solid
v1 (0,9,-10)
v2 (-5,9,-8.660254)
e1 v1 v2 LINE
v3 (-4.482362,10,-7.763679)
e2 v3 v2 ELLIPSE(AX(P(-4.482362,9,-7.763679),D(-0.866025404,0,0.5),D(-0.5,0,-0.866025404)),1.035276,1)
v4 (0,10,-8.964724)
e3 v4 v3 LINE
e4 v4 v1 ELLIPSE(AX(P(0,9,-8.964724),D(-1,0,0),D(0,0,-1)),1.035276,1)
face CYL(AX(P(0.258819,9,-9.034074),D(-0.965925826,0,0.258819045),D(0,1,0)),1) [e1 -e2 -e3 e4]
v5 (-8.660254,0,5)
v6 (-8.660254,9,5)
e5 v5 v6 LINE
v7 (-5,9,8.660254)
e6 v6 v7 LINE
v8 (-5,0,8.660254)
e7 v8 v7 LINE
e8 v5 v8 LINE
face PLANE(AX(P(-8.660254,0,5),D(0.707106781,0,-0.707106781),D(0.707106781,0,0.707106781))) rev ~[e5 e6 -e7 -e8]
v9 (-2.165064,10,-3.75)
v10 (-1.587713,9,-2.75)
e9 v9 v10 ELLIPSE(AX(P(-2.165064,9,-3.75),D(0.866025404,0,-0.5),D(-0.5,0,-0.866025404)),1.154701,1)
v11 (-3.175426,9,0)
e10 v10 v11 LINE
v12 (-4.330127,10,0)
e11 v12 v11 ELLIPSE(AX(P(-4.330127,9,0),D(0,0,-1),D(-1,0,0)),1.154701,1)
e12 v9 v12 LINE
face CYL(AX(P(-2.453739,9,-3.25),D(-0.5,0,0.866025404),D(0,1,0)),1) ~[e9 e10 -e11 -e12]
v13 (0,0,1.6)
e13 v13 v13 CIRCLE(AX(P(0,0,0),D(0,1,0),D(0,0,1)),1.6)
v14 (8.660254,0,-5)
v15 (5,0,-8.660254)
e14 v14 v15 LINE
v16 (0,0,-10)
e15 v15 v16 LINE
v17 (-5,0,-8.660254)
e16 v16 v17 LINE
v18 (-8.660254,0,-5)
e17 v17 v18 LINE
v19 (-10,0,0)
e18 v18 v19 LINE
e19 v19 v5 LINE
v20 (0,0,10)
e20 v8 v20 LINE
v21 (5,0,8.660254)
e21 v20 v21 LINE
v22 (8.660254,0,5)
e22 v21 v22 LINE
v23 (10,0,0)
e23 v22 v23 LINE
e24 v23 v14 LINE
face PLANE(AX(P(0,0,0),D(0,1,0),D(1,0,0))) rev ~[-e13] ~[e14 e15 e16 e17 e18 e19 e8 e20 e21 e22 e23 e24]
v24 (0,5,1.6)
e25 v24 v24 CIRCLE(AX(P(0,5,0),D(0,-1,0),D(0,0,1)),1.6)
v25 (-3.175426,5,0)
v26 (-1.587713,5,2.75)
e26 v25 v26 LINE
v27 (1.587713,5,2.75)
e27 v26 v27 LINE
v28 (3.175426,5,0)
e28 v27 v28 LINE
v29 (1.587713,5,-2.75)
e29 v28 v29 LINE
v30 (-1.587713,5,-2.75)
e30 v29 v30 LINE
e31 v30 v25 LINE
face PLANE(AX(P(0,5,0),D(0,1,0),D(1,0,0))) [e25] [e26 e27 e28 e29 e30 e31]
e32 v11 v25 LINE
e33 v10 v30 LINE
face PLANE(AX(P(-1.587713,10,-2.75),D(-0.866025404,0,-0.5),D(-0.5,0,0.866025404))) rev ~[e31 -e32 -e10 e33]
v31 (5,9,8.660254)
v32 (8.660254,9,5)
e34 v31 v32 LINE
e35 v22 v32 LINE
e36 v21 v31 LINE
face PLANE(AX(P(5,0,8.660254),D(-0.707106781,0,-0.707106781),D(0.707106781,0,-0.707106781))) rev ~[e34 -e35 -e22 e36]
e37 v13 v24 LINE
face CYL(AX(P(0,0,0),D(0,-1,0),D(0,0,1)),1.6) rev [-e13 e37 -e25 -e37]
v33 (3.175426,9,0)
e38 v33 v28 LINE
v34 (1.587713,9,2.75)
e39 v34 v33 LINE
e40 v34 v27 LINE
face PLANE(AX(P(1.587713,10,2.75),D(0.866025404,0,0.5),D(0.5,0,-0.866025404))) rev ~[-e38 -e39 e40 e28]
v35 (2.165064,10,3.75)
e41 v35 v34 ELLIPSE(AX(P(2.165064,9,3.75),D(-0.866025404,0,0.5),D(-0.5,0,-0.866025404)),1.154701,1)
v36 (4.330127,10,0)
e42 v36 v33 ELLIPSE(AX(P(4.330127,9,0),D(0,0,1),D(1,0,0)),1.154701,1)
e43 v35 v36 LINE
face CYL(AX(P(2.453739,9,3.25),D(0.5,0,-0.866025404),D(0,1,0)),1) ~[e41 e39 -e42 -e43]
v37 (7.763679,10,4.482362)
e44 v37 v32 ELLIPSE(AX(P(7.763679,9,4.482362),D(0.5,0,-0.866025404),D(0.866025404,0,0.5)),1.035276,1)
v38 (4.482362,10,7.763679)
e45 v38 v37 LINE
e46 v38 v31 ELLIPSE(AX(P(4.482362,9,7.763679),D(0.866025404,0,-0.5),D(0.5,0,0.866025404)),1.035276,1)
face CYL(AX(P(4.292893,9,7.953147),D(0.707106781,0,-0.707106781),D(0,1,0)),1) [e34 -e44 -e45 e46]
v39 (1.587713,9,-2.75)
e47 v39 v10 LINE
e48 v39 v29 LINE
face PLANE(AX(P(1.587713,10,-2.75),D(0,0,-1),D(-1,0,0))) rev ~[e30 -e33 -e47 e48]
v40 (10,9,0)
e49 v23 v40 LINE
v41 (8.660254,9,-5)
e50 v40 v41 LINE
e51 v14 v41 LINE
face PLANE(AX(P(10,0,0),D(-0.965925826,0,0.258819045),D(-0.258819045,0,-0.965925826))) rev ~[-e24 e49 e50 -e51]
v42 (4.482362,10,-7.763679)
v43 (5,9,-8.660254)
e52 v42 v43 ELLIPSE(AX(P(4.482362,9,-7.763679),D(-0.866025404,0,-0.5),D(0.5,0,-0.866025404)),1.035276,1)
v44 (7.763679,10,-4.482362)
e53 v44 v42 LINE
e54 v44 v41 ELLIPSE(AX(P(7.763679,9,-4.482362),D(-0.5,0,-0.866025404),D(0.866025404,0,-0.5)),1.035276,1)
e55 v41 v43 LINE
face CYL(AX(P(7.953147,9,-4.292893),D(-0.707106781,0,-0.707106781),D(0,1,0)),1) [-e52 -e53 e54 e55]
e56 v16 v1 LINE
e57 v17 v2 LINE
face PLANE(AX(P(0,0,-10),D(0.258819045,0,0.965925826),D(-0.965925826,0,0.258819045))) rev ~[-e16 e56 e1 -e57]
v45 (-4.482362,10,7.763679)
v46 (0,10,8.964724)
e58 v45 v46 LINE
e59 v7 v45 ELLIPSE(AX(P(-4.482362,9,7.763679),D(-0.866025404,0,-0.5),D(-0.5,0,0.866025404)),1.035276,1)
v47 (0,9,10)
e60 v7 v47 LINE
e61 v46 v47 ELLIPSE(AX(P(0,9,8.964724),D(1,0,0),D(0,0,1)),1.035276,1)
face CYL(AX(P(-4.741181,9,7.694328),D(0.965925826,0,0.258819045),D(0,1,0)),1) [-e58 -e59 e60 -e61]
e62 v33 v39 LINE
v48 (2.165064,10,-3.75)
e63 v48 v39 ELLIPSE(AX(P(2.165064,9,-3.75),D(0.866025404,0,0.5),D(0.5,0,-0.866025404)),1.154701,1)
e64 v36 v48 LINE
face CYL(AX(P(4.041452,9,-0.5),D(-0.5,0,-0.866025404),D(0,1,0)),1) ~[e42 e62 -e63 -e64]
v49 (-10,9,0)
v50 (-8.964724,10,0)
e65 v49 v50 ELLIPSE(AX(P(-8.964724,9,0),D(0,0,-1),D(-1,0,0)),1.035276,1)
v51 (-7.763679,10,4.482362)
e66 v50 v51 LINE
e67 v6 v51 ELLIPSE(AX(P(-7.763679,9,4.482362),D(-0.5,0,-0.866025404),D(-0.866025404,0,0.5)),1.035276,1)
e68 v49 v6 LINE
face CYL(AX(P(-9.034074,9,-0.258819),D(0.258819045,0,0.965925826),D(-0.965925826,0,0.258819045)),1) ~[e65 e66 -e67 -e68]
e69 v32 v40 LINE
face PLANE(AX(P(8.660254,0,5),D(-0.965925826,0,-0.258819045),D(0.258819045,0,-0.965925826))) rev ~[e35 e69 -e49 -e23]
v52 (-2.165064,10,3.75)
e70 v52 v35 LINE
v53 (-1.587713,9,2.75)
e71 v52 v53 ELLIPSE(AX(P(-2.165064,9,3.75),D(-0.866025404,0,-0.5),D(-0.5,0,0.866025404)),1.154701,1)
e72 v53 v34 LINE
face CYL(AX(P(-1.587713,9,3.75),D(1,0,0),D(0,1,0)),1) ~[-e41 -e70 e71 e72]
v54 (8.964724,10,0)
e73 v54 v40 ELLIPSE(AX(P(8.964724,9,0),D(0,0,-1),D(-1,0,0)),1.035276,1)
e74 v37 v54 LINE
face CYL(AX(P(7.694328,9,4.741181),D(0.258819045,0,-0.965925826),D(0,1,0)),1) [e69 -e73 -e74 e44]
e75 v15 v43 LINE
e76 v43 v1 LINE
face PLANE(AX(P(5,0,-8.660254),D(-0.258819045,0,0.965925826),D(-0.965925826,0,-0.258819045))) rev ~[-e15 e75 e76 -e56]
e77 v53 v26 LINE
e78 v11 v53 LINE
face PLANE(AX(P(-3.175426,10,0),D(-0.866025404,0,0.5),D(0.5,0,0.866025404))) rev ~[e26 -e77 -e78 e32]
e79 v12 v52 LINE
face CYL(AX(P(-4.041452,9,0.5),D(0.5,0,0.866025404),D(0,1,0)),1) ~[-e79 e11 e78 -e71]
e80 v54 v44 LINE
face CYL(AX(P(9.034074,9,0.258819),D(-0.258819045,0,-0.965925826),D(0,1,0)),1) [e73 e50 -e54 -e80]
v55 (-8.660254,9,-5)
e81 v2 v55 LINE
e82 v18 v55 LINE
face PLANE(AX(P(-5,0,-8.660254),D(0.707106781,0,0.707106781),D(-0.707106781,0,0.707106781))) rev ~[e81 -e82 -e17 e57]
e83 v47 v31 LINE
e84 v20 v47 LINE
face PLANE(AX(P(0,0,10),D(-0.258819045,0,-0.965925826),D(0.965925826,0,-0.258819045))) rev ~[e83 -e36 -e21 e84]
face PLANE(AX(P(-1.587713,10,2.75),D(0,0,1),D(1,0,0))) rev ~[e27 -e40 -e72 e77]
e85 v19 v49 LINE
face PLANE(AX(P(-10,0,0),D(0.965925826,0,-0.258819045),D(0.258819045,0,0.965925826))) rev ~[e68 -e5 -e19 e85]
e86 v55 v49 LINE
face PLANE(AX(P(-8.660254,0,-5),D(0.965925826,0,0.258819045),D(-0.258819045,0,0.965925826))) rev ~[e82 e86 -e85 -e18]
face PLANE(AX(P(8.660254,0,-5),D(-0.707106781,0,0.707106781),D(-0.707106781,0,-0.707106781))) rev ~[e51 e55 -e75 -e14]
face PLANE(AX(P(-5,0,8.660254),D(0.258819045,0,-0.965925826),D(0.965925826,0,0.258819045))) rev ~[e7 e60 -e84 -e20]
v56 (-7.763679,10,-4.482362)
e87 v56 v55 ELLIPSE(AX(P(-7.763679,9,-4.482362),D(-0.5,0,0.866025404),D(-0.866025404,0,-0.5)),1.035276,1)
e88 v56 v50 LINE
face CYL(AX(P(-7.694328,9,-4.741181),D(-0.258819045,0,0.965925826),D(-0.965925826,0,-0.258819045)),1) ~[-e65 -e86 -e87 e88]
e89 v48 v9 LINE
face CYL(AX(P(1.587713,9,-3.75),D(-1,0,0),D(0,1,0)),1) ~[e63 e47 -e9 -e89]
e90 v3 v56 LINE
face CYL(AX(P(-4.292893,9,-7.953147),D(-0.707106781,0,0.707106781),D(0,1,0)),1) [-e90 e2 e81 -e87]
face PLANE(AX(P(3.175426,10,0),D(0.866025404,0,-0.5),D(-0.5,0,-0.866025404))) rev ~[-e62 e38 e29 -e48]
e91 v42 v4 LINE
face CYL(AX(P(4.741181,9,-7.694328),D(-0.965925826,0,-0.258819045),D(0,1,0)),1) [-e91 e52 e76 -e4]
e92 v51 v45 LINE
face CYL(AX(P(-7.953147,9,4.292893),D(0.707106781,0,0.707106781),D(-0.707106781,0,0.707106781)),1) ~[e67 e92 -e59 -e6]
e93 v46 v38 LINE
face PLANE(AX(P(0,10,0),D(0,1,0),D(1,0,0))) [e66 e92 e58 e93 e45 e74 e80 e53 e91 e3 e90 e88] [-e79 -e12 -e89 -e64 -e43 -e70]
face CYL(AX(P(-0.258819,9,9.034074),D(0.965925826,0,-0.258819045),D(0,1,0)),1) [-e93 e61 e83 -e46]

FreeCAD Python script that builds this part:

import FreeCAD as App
import Part
import Sketcher
Q = App.Units.Quantity


def edges_at(feature, points):
    """Names of the edges that pass closest to the given points."""
    edges = feature.Shape.Edges
    near = lambda p: min(range(len(edges)), key=lambda i: edges[i].distToShape(Part.Vertex(*p))[0])
    return sorted({f"Edge{near(p) + 1}" for p in points})


def add_polygon(sketch, points):
    """Adds a closed chain of lines whose ends are joined by coincident constraints."""
    first, n = sketch.GeometryCount, len(points)
    for a, b in zip(points, points[1:] + points[:1]):
        sketch.addGeometry(Part.LineSegment(App.Vector(*a, 0), App.Vector(*b, 0)), False)
    for i in range(n):
        sketch.addConstraint(Sketcher.Constraint("Coincident", first + i, 2, first + (i + 1) % n, 1))

doc = App.newDocument("Part")
body = doc.addObject("PartDesign::Body", "Body")

# Sketch on XZ plane
sketch1 = body.newObject("Sketcher::SketchObject", "Sketch")
sketch1.AttachmentSupport = (doc.getObject("XZ_Plane"), [""])
sketch1.MapMode = "FlatFace"
add_polygon(sketch1, [(-10, 0), (-8.660254, 5), (-5, 8.660254), (0, 10), (5, 8.660254), (8.660254, 5), (10, 0), (8.660254, -5), (5, -8.660254), (0, -10), (-5, -8.660254), (-8.660254, -5)])  # lines 0-11
sketch1.addGeometry(Part.Circle(App.Vector(0, 0, 0), App.Vector(0, 0, 1), 1.6), False)  # 12
sketch1.addConstraint(Sketcher.Constraint("Coincident", 12, 3, -1, 1))
sketch1.addConstraint(Sketcher.Constraint("Symmetric", 0, 2, 6, 2, -1, 1))
sketch1.addConstraint(Sketcher.Constraint("Symmetric", 1, 2, 7, 2, -1, 1))
sketch1.addConstraint(Sketcher.Constraint("Symmetric", 2, 2, 8, 2, -1, 1))
sketch1.addConstraint(Sketcher.Constraint("Symmetric", 3, 2, 9, 2, -1, 1))
sketch1.addConstraint(Sketcher.Constraint("Symmetric", 4, 2, 10, 2, -1, 1))
sketch1.addConstraint(Sketcher.Constraint("Symmetric", 5, 2, 11, 2, -1, 1))
sketch1.addConstraint(Sketcher.Constraint("Symmetric", 1, 2, 3, 2, -2))
sketch1.addConstraint(Sketcher.Constraint("Symmetric", 0, 2, 4, 2, -2))
sketch1.addConstraint(Sketcher.Constraint("PointOnObject", 2, 2, -2))
sketch1.addConstraint(Sketcher.Constraint("PointOnObject", 5, 2, -1))
sketch1.addConstraint(Sketcher.Constraint("Perpendicular", 0, 3))
sketch1.addConstraint(Sketcher.Constraint("Perpendicular", 1, 4))
sketch1.addConstraint(Sketcher.Constraint("Equal", 0, 1))
sketch1.addConstraint(Sketcher.Constraint("Equal", 1, 2))
sketch1.addConstraint(Sketcher.Constraint("Diameter", 12, Q("3.2 mm")))
sketch1.addConstraint(Sketcher.Constraint("Angle", 0, Q("75 deg")))
sketch1.addConstraint(Sketcher.Constraint("DistanceY", -1, 1, 0, 2, Q("5 mm")))
pad1 = body.newObject("PartDesign::Pad", "Pad")
pad1.Profile = sketch1
pad1.Length = 10
pad1.Reversed = True

# Sketch on XZ plane
sketch2 = body.newObject("Sketcher::SketchObject", "Sketch001")
sketch2.AttachmentSupport = (doc.getObject("XZ_Plane"), [""])
sketch2.MapMode = "FlatFace"
sketch2.AttachmentOffset = App.Placement(App.Vector(0, 0, -10), App.Rotation())
add_polygon(sketch2, [(3.175426, 0), (1.587713, -2.75), (-1.587713, -2.75), (-3.175426, 0), (-1.587713, 2.75), (1.587713, 2.75)])  # lines 0-5
sketch2.addConstraint(Sketcher.Constraint("Horizontal", 1))
sketch2.addConstraint(Sketcher.Constraint("Horizontal", 4))
sketch2.addConstraint(Sketcher.Constraint("Symmetric", 0, 2, 3, 2, -1, 1))
sketch2.addConstraint(Sketcher.Constraint("Symmetric", 2, 2, 5, 2, -1, 1))
sketch2.addConstraint(Sketcher.Constraint("PointOnObject", 2, 2, -1))
sketch2.addConstraint(Sketcher.Constraint("Parallel", 2, 5))
sketch2.addConstraint(Sketcher.Constraint("Vertical", 1, 2, 3, 2))
sketch2.addConstraint(Sketcher.Constraint("Angle", 0, Q("-120 deg")))
sketch2.addConstraint(Sketcher.Constraint("DistanceY", 1, 2, 3, 2, Q("5.5 mm")))
sketch2.addConstraint(Sketcher.Constraint("DistanceX", 1, 2, 1, 1, Q("3.175426 mm")))
pocket1 = body.newObject("PartDesign::Pocket", "Pocket")
pocket1.Profile = sketch2
pocket1.Length = 5
pocket1.Reversed = True
doc.recompute()

fillet = body.newObject("PartDesign::Fillet", "Fillet")
fillet.Base = (pocket1, edges_at(pocket1, [
    (9.33, 10, -2.5),
    (6.83, 10, -6.83),
    (2.5, 10, -9.33),
    (-2.5, 10, -9.33),
    (-6.83, 10, -6.83),
    (-9.33, 10, -2.5),
    (-9.33, 10, 2.5),
    (-6.83, 10, 6.83),
    (-2.5, 10, 9.33),
    (2.382, 10, 1.375),
    (2.382, 10, -1.375),
    (0, 10, -2.75),
    (-2.382, 10, -1.375),
    (-2.382, 10, 1.375),
    (0, 10, 2.75),
    (2.5, 10, 9.33),
    (6.83, 10, 6.83),
    (9.33, 10, 2.5),
]))
fillet.Radius = 1

doc.recompute()
